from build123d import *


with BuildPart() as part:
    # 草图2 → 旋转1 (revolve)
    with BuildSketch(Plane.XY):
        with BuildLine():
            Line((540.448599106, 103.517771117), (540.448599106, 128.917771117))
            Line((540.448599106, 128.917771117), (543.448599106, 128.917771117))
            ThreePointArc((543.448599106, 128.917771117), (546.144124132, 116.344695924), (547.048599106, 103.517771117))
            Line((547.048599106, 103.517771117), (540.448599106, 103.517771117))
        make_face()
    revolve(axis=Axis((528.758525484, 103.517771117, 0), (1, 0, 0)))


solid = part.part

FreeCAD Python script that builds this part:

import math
import FreeCAD as App
import Part
import Sketcher
from FreeCAD import Vector
Q = App.Units.Quantity

doc = App.newDocument("Part")
body = doc.addObject("PartDesign::Body", "Body")

# Sketch on XY plane
sketch1 = doc.addObject("Sketcher::SketchObject", "Sketch")
body.addObject(sketch1)
sketch1.AttachmentSupport = (doc.XY_Plane, [""])
sketch1.MapMode = "FlatFace"
sketch1.addGeometry([
    Part.LineSegment(Vector(540.448599, 128.917771, 0), Vector(540.448599, 103.517771, 0)),
    Part.LineSegment(Vector(540.448599, 103.517771, 0), Vector(547.048599, 103.517771, 0)),
    Part.ArcOfCircle(Part.Circle(Vector(455.643044, 103.517771, 0), Vector(0, 0, 1), 91.405556), math.radians(0), math.radians(16.133863)),
    Part.LineSegment(Vector(543.448599, 128.917771, 0), Vector(540.448599, 128.917771, 0)),
], False)
sketch1.addGeometry(Part.LineSegment(Vector(455.643044, 103.517771, 0), Vector(547.048599, 103.517771, 0)), True)  # axis
sketch1.addConstraint([
    Sketcher.Constraint("Coincident", 0, 2, 1, 1),
    Sketcher.Constraint("Coincident", 1, 2, 2, 1),
    Sketcher.Constraint("Coincident", 2, 2, 3, 1),
    Sketcher.Constraint("Coincident", 3, 2, 0, 1),
    Sketcher.Constraint("Vertical", 0),
    Sketcher.Constraint("Horizontal", 1),
    Sketcher.Constraint("Horizontal", 3),
    Sketcher.Constraint("Horizontal", 4),
    Sketcher.Constraint("Coincident", 4, 1, 2, 3),
    Sketcher.Constraint("Coincident", 4, 2, 1, 2),
    Sketcher.Constraint("DistanceX", 3, 2, 3, 1, Q("3 mm")),
    Sketcher.Constraint("DistanceX", 1, 1, 1, 2, Q("6.6 mm")),
    Sketcher.Constraint("DistanceY", 0, 2, 0, 1, Q("25.4 mm")),
    Sketcher.Constraint("DistanceX", -1, 1, 0, 2, Q("540.448599 mm")),
    Sketcher.Constraint("DistanceY", -1, 1, 2, 3, Q("103.517771 mm")),
])
revolution = doc.addObject("PartDesign::Revolution", "Revolution")
body.addObject(revolution)
revolution.Profile = sketch1
revolution.ReferenceAxis = (sketch1, ["Axis0"])
revolution.Angle = 360

doc.recompute()
